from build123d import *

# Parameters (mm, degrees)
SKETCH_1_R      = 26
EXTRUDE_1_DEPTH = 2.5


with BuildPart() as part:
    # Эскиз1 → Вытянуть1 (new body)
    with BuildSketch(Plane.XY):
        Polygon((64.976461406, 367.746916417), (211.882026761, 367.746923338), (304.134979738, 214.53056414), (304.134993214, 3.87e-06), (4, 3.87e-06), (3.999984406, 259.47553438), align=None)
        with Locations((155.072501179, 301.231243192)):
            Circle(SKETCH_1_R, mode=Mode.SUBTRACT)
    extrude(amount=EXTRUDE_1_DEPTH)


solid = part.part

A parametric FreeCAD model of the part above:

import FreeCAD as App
import Part
import Sketcher
from FreeCAD import Vector
Q = App.Units.Quantity


def add_polygon(sketch, points):
    """Adds a closed chain of lines whose ends are joined by coincident constraints."""
    first, n = sketch.GeometryCount, len(points)
    for a, b in zip(points, points[1:] + points[:1]):
        sketch.addGeometry(Part.LineSegment(App.Vector(*a, 0), App.Vector(*b, 0)), False)
    for i in range(n):
        sketch.addConstraint(Sketcher.Constraint("Coincident", first + i, 2, first + (i + 1) % n, 1))

doc = App.newDocument("Part")
body = doc.addObject("PartDesign::Body", "Body")

# Sketch on XY plane
sketch1 = body.newObject("Sketcher::SketchObject", "Sketch")
sketch1.AttachmentSupport = (doc.getObject("XY_Plane"), [""])
sketch1.MapMode = "FlatFace"
add_polygon(sketch1, [(212, 368), (65, 368), (4, 259), (4, 0), (304, 0), (304, 215)])  # lines 0-5
sketch1.addGeometry(Part.Circle(Vector(155, 301, 0), Vector(0, 0, 1), 26), False)  # 6
sketch1.addConstraint([
    Sketcher.Constraint("Horizontal", 3),
    Sketcher.Constraint("Perpendicular", 0, 2),
    Sketcher.Constraint("Parallel", 2, 4),
    Sketcher.Constraint("Diameter", 6, Q("52 mm")),
    Sketcher.Constraint("Angle", 0, Q("-179.999997 deg")),
    Sketcher.Constraint("DistanceX", -1, 1, 2, 2, Q("4 mm")),
    Sketcher.Constraint("DistanceX", -1, 1, 6, 3, Q("155.072501 mm")),
    Sketcher.Constraint("Distance", 2, Q("259.475531 mm")),
    Sketcher.Constraint("Distance", 4, Q("214.53056 mm")),
    Sketcher.Constraint("Distance", 5, Q("178.845911 mm")),
    Sketcher.Constraint("DistanceX", 3, 1, 3, 2, Q("300.134993 mm")),
    Sketcher.Constraint("DistanceX", -1, 1, 0, 2, Q("64.976461 mm")),
    Sketcher.Constraint("DistanceY", 1, 2, 6, 3, Q("41.755709 mm")),
    Sketcher.Constraint("DistanceY", 6, 3, 5, 2, Q("66.51568 mm")),
    Sketcher.Constraint("DistanceY", -1, 1, 6, 3, Q("301.231243 mm")),
])
pad1 = body.newObject("PartDesign::Pad", "Pad")
pad1.Profile = sketch1
pad1.Length = 2.5

doc.recompute()
